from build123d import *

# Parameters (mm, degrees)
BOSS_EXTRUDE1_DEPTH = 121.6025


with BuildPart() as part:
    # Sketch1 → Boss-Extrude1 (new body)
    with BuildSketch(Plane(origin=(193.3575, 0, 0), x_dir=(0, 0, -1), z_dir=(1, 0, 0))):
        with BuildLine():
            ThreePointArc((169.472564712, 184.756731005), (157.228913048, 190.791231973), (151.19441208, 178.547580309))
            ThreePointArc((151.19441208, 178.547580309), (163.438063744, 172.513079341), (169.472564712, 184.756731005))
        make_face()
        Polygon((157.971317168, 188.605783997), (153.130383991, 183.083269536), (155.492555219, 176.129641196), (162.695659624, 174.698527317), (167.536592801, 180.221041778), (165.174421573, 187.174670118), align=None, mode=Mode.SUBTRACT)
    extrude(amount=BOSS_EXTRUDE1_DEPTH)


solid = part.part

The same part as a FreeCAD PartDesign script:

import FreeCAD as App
import Part
import Sketcher
from FreeCAD import Vector
Q = App.Units.Quantity


def add_polygon(sketch, points):
    """Adds a closed chain of lines whose ends are joined by coincident constraints."""
    first, n = sketch.GeometryCount, len(points)
    for a, b in zip(points, points[1:] + points[:1]):
        sketch.addGeometry(Part.LineSegment(App.Vector(*a, 0), App.Vector(*b, 0)), False)
    for i in range(n):
        sketch.addConstraint(Sketcher.Constraint("Coincident", first + i, 2, first + (i + 1) % n, 1))

doc = App.newDocument("Part")
body = doc.addObject("PartDesign::Body", "Body")

sketch1 = doc.addObject("Sketcher::SketchObject", "Sketch")
body.addObject(sketch1)
sketch1.AttachmentSupport = (doc.YZ_Plane, [""])
sketch1.MapMode = "FlatFace"
sketch1.AttachmentOffset = App.Placement(Vector(0, 0, 7.6125 * 25.4), App.Rotation())
sketch1.addGeometry(Part.Circle(Vector(181.652156, -160.333488, 0), Vector(0, 0, 1), 9.652), False)
add_polygon(sketch1, [(183.08327, -153.130384), (188.605784, -157.971317), (187.17467, -165.174422), (180.221042, -167.536593), (174.698527, -162.69566), (176.129641, -155.492555)])
sketch1.addConstraint([
    Sketcher.Constraint("Parallel", 1, 4),
    Sketcher.Constraint("Parallel", 2, 5),
    Sketcher.Constraint("Parallel", 3, 6),
    Sketcher.Constraint("Equal", 1, 2),
    Sketcher.Constraint("Equal", 2, 3),
    Sketcher.Constraint("Equal", 3, 4),
    Sketcher.Constraint("Diameter", 0, Q("0.76 in")),
    Sketcher.Constraint("DistanceX", 5, 2, 3, 2, Q("4.091401 mm")),
    Sketcher.Constraint("DistanceY", 0, 3, -1, 1, Q("160.333488 mm")),
    Sketcher.Constraint("DistanceX", -1, 1, 2, 2, Q("187.17467 mm")),
    Sketcher.Constraint("DistanceY", 2, 2, -1, 1, Q("165.174422 mm")),
    Sketcher.Constraint("DistanceX", -1, 1, 3, 2, Q("180.221042 mm")),
    Sketcher.Constraint("DistanceY", 4, 2, -1, 1, Q("162.69566 mm")),
    Sketcher.Constraint("DistanceX", 0, 3, 1, 2, Q("6.953628 mm")),
    Sketcher.Constraint("DistanceY", 0, 3, 1, 2, Q("2.362171 mm")),
])
pad1 = doc.addObject("PartDesign::Pad", "Pad")
body.addObject(pad1)
pad1.Profile = sketch1
pad1.Length = Q("4.7875 in")

doc.recompute()
